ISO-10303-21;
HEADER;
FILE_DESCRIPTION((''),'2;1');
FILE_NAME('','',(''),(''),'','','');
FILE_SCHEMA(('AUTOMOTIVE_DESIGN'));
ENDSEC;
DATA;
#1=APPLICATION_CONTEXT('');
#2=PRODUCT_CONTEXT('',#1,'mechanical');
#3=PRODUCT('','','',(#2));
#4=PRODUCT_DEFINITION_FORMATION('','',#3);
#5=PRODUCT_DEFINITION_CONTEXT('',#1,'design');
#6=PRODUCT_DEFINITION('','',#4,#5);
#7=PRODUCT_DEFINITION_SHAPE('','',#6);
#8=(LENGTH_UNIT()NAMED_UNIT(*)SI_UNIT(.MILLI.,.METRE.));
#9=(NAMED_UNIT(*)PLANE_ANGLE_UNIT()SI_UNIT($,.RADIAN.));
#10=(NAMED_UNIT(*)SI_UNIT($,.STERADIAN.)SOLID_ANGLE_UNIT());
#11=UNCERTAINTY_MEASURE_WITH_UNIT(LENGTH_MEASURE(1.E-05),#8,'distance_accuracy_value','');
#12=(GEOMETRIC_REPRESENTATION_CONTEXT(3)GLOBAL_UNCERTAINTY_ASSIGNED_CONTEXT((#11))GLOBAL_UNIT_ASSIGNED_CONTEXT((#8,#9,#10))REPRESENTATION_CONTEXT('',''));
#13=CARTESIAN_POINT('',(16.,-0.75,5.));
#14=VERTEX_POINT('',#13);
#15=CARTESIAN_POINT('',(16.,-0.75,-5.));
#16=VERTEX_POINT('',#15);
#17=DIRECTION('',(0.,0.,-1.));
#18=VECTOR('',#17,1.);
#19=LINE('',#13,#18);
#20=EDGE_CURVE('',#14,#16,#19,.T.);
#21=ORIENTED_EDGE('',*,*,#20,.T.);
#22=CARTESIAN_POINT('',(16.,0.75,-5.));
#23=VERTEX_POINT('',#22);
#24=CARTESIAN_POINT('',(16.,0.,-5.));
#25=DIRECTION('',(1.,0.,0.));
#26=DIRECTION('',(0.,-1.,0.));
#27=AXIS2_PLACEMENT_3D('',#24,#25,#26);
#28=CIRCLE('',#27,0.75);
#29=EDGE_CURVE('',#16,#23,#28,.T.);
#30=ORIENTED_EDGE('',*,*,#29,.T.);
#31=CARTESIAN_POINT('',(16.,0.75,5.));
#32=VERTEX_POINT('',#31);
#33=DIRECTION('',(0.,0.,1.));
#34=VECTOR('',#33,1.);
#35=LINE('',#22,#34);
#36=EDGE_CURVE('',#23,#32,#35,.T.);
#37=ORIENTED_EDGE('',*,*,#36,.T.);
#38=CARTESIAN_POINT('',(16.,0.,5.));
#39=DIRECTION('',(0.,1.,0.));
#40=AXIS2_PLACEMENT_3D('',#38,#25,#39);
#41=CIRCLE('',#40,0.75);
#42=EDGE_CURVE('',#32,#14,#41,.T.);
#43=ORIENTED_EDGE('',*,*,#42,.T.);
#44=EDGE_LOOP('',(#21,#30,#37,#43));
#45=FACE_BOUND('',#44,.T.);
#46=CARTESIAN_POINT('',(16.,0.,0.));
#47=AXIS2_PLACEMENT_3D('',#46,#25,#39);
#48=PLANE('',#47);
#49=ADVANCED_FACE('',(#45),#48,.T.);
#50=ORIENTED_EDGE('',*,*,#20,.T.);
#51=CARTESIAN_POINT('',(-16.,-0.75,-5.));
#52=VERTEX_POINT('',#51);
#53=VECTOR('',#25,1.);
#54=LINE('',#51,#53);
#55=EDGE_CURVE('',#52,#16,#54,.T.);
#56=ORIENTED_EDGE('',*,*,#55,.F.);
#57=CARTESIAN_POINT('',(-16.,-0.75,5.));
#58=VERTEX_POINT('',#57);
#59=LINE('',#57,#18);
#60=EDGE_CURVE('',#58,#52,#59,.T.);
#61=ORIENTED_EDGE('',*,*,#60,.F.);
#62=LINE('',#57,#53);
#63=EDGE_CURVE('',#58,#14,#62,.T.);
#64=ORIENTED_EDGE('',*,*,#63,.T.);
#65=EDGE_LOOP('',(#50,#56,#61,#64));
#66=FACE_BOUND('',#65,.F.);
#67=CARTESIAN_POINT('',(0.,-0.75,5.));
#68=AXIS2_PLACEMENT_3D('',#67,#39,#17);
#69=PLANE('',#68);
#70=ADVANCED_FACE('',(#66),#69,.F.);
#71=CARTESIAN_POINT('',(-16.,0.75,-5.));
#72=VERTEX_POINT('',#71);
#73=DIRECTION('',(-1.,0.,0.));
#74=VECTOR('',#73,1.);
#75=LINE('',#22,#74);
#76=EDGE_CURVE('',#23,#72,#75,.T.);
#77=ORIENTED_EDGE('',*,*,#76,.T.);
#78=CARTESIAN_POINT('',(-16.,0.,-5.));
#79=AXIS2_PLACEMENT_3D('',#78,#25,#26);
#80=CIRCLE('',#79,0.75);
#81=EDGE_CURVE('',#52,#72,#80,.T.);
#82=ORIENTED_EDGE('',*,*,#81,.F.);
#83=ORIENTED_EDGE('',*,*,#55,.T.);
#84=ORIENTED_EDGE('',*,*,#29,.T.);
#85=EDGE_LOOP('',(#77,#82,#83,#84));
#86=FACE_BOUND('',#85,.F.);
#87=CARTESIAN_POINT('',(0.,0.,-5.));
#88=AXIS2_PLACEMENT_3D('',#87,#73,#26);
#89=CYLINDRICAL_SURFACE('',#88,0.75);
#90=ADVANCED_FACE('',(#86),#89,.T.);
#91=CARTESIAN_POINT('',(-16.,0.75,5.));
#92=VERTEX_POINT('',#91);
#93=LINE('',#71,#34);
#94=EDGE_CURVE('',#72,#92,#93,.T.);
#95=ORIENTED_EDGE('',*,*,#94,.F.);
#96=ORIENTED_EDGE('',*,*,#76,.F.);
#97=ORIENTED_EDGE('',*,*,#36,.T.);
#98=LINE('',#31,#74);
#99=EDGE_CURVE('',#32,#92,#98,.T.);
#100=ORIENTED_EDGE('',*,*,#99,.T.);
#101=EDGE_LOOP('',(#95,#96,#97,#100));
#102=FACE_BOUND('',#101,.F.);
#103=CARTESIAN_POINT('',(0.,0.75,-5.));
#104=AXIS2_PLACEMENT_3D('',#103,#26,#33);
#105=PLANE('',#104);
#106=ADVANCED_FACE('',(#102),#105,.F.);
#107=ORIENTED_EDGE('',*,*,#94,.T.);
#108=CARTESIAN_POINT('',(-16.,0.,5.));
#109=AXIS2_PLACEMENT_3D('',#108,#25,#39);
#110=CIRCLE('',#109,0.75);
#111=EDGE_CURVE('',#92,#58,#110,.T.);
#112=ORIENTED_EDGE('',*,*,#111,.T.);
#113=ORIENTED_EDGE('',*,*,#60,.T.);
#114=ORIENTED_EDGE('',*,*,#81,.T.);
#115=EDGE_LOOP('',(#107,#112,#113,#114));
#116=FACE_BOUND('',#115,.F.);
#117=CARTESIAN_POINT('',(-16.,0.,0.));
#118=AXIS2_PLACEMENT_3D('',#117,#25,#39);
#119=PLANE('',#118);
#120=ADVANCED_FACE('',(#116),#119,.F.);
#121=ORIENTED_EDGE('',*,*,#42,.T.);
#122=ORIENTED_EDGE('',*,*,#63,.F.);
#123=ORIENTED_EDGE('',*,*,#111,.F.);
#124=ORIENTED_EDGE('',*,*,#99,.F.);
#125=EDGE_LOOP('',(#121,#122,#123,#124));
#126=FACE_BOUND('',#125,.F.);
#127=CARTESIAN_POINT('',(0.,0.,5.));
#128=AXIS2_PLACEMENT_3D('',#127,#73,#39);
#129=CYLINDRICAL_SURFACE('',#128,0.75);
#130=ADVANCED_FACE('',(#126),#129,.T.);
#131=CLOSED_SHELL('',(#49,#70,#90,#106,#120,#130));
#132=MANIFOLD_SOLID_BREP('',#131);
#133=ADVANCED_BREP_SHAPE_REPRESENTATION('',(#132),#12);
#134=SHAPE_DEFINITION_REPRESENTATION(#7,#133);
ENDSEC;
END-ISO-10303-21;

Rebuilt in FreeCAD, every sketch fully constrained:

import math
import FreeCAD as App
import Part
import Sketcher

doc = App.newDocument("Part")
body = doc.addObject("PartDesign::Body", "Body")

# Sketch on YZ plane
sketch1 = doc.addObject("Sketcher::SketchObject", "Sketch")
body.addObject(sketch1)
sketch1.AttachmentSupport = (doc.YZ_Plane, [""])
sketch1.MapMode = "FlatFace"
sketch1.addGeometry(Part.ArcOfCircle(Part.Circle(App.Vector(0, 5, 0), App.Vector(0, 0, 1), 0.8), math.radians(0), math.radians(180)), False)
sketch1.addGeometry(Part.LineSegment(App.Vector(-0.8, 5, 0), App.Vector(-0.8, -5, 0)), False)
sketch1.addGeometry(Part.ArcOfCircle(Part.Circle(App.Vector(0, -5, 0), App.Vector(0, 0, 1), 0.8), math.radians(180), math.radians(360)), False)
sketch1.addGeometry(Part.LineSegment(App.Vector(0.8, -5, 0), App.Vector(0.8, 5, 0)), False)
sketch1.addConstraint(Sketcher.Constraint("Tangent", 0, 2, 1, 1))
sketch1.addConstraint(Sketcher.Constraint("Tangent", 1, 2, 2, 1))
sketch1.addConstraint(Sketcher.Constraint("Tangent", 2, 2, 3, 1))
sketch1.addConstraint(Sketcher.Constraint("Tangent", 3, 2, 0, 1))
sketch1.addConstraint(Sketcher.Constraint("Vertical", 1))
sketch1.addConstraint(Sketcher.Constraint("Vertical", 3))
sketch1.addConstraint(Sketcher.Constraint("Symmetric", 0, 3, 2, 3, -1, 1))
sketch1.addConstraint(Sketcher.Constraint("Radius", 0, 0.75))
sketch1.addConstraint(Sketcher.Constraint("DistanceY", -1, 1, 0, 3, 5.0))
pad1 = doc.addObject("PartDesign::Pad", "Pad")
body.addObject(pad1)
pad1.Profile = sketch1
pad1.Type = "TwoLengths"
pad1.Length = 16
pad1.Length2 = 16

doc.recompute()
